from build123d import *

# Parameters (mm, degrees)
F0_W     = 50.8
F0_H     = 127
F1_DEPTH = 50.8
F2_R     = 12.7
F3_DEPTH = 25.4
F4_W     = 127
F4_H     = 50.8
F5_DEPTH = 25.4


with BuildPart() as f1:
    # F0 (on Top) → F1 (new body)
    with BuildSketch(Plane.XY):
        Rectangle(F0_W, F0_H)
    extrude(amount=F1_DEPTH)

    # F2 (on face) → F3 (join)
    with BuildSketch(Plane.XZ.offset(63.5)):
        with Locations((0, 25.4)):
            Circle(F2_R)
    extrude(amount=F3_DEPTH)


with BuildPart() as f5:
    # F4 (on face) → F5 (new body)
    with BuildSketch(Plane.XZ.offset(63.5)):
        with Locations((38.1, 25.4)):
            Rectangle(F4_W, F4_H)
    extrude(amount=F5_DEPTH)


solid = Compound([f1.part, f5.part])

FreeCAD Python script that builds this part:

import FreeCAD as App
import Part
import Sketcher
from FreeCAD import Vector
Q = App.Units.Quantity

doc = App.newDocument("Part")
body = doc.addObject("PartDesign::Body", "Body")

# Sketch on XY plane
sketch1 = body.newObject("Sketcher::SketchObject", "Sketch")
sketch1.AttachmentSupport = (doc.getObject("XY_Plane"), [""])
sketch1.MapMode = "FlatFace"
sketch1.addGeometry([
    Part.LineSegment(Vector(-25, 64, 0), Vector(-25, -64, 0)),
    Part.LineSegment(Vector(-25, -64, 0), Vector(25, -64, 0)),
    Part.LineSegment(Vector(25, -64, 0), Vector(25, 64, 0)),
    Part.LineSegment(Vector(25, 64, 0), Vector(-25, 64, 0)),
], False)
sketch1.addConstraint([
    Sketcher.Constraint("Coincident", 0, 2, 1, 1),
    Sketcher.Constraint("Coincident", 1, 2, 2, 1),
    Sketcher.Constraint("Coincident", 2, 2, 3, 1),
    Sketcher.Constraint("Coincident", 3, 2, 0, 1),
    Sketcher.Constraint("Vertical", 0),
    Sketcher.Constraint("Horizontal", 1),
    Sketcher.Constraint("Vertical", 2),
    Sketcher.Constraint("Horizontal", 3),
    Sketcher.Constraint("Symmetric", 0, 2, 2, 2, -1, 1),
    Sketcher.Constraint("DistanceX", 1, 1, 1, 2, Q("2 in")),
    Sketcher.Constraint("DistanceY", 0, 2, 0, 1, Q("5 in")),
])
pad1 = body.newObject("PartDesign::Pad", "Pad")
pad1.Profile = sketch1
pad1.Length = Q("2 in")

# Sketch on XZ plane
sketch2 = body.newObject("Sketcher::SketchObject", "Sketch001")
sketch2.AttachmentSupport = (doc.getObject("XZ_Plane"), [""])
sketch2.MapMode = "FlatFace"
sketch2.AttachmentOffset = App.Placement(Vector(0, 0, 2.5 * 25.4), App.Rotation())
sketch2.addGeometry(Part.Circle(Vector(0, 25, 0), Vector(0, 0, 1), 13), False)
sketch2.addConstraint([
    Sketcher.Constraint("PointOnObject", 0, 3, -2),
    Sketcher.Constraint("Diameter", 0, Q("1 in")),
    Sketcher.Constraint("DistanceY", -1, 1, 0, 3, Q("1 in")),
])
pad2 = body.newObject("PartDesign::Pad", "Pad001")
pad2.Profile = sketch2
pad2.Length = Q("1 in")
body2 = doc.addObject("PartDesign::Body", "Body001")

# Sketch on XZ plane
sketch3 = body2.newObject("Sketcher::SketchObject", "Sketch002")
sketch3.AttachmentSupport = (doc.getObject("XZ_Plane001"), [""])
sketch3.MapMode = "FlatFace"
sketch3.AttachmentOffset = App.Placement(Vector(0, 0, 2.5 * 25.4), App.Rotation())
sketch3.addGeometry([
    Part.LineSegment(Vector(-25, 51, 0), Vector(-25, 0, 0)),
    Part.LineSegment(Vector(-25, 0, 0), Vector(102, 0, 0)),
    Part.LineSegment(Vector(102, 0, 0), Vector(102, 51, 0)),
    Part.LineSegment(Vector(102, 51, 0), Vector(-25, 51, 0)),
], False)
sketch3.addConstraint([
    Sketcher.Constraint("Coincident", 0, 2, 1, 1),
    Sketcher.Constraint("Coincident", 1, 2, 2, 1),
    Sketcher.Constraint("Coincident", 2, 2, 3, 1),
    Sketcher.Constraint("Coincident", 3, 2, 0, 1),
    Sketcher.Constraint("Vertical", 0),
    Sketcher.Constraint("Horizontal", 1),
    Sketcher.Constraint("Vertical", 2),
    Sketcher.Constraint("Horizontal", 3),
    Sketcher.Constraint("PointOnObject", 0, 2, -1),
    Sketcher.Constraint("DistanceX", 1, 1, 1, 2, Q("5 in")),
    Sketcher.Constraint("DistanceY", 0, 2, 0, 1, Q("2 in")),
    Sketcher.Constraint("DistanceX", 0, 2, -1, 1, Q("1 in")),
])
pad3 = body2.newObject("PartDesign::Pad", "Pad002")
pad3.Profile = sketch3
pad3.Length = Q("1 in")

doc.recompute()
